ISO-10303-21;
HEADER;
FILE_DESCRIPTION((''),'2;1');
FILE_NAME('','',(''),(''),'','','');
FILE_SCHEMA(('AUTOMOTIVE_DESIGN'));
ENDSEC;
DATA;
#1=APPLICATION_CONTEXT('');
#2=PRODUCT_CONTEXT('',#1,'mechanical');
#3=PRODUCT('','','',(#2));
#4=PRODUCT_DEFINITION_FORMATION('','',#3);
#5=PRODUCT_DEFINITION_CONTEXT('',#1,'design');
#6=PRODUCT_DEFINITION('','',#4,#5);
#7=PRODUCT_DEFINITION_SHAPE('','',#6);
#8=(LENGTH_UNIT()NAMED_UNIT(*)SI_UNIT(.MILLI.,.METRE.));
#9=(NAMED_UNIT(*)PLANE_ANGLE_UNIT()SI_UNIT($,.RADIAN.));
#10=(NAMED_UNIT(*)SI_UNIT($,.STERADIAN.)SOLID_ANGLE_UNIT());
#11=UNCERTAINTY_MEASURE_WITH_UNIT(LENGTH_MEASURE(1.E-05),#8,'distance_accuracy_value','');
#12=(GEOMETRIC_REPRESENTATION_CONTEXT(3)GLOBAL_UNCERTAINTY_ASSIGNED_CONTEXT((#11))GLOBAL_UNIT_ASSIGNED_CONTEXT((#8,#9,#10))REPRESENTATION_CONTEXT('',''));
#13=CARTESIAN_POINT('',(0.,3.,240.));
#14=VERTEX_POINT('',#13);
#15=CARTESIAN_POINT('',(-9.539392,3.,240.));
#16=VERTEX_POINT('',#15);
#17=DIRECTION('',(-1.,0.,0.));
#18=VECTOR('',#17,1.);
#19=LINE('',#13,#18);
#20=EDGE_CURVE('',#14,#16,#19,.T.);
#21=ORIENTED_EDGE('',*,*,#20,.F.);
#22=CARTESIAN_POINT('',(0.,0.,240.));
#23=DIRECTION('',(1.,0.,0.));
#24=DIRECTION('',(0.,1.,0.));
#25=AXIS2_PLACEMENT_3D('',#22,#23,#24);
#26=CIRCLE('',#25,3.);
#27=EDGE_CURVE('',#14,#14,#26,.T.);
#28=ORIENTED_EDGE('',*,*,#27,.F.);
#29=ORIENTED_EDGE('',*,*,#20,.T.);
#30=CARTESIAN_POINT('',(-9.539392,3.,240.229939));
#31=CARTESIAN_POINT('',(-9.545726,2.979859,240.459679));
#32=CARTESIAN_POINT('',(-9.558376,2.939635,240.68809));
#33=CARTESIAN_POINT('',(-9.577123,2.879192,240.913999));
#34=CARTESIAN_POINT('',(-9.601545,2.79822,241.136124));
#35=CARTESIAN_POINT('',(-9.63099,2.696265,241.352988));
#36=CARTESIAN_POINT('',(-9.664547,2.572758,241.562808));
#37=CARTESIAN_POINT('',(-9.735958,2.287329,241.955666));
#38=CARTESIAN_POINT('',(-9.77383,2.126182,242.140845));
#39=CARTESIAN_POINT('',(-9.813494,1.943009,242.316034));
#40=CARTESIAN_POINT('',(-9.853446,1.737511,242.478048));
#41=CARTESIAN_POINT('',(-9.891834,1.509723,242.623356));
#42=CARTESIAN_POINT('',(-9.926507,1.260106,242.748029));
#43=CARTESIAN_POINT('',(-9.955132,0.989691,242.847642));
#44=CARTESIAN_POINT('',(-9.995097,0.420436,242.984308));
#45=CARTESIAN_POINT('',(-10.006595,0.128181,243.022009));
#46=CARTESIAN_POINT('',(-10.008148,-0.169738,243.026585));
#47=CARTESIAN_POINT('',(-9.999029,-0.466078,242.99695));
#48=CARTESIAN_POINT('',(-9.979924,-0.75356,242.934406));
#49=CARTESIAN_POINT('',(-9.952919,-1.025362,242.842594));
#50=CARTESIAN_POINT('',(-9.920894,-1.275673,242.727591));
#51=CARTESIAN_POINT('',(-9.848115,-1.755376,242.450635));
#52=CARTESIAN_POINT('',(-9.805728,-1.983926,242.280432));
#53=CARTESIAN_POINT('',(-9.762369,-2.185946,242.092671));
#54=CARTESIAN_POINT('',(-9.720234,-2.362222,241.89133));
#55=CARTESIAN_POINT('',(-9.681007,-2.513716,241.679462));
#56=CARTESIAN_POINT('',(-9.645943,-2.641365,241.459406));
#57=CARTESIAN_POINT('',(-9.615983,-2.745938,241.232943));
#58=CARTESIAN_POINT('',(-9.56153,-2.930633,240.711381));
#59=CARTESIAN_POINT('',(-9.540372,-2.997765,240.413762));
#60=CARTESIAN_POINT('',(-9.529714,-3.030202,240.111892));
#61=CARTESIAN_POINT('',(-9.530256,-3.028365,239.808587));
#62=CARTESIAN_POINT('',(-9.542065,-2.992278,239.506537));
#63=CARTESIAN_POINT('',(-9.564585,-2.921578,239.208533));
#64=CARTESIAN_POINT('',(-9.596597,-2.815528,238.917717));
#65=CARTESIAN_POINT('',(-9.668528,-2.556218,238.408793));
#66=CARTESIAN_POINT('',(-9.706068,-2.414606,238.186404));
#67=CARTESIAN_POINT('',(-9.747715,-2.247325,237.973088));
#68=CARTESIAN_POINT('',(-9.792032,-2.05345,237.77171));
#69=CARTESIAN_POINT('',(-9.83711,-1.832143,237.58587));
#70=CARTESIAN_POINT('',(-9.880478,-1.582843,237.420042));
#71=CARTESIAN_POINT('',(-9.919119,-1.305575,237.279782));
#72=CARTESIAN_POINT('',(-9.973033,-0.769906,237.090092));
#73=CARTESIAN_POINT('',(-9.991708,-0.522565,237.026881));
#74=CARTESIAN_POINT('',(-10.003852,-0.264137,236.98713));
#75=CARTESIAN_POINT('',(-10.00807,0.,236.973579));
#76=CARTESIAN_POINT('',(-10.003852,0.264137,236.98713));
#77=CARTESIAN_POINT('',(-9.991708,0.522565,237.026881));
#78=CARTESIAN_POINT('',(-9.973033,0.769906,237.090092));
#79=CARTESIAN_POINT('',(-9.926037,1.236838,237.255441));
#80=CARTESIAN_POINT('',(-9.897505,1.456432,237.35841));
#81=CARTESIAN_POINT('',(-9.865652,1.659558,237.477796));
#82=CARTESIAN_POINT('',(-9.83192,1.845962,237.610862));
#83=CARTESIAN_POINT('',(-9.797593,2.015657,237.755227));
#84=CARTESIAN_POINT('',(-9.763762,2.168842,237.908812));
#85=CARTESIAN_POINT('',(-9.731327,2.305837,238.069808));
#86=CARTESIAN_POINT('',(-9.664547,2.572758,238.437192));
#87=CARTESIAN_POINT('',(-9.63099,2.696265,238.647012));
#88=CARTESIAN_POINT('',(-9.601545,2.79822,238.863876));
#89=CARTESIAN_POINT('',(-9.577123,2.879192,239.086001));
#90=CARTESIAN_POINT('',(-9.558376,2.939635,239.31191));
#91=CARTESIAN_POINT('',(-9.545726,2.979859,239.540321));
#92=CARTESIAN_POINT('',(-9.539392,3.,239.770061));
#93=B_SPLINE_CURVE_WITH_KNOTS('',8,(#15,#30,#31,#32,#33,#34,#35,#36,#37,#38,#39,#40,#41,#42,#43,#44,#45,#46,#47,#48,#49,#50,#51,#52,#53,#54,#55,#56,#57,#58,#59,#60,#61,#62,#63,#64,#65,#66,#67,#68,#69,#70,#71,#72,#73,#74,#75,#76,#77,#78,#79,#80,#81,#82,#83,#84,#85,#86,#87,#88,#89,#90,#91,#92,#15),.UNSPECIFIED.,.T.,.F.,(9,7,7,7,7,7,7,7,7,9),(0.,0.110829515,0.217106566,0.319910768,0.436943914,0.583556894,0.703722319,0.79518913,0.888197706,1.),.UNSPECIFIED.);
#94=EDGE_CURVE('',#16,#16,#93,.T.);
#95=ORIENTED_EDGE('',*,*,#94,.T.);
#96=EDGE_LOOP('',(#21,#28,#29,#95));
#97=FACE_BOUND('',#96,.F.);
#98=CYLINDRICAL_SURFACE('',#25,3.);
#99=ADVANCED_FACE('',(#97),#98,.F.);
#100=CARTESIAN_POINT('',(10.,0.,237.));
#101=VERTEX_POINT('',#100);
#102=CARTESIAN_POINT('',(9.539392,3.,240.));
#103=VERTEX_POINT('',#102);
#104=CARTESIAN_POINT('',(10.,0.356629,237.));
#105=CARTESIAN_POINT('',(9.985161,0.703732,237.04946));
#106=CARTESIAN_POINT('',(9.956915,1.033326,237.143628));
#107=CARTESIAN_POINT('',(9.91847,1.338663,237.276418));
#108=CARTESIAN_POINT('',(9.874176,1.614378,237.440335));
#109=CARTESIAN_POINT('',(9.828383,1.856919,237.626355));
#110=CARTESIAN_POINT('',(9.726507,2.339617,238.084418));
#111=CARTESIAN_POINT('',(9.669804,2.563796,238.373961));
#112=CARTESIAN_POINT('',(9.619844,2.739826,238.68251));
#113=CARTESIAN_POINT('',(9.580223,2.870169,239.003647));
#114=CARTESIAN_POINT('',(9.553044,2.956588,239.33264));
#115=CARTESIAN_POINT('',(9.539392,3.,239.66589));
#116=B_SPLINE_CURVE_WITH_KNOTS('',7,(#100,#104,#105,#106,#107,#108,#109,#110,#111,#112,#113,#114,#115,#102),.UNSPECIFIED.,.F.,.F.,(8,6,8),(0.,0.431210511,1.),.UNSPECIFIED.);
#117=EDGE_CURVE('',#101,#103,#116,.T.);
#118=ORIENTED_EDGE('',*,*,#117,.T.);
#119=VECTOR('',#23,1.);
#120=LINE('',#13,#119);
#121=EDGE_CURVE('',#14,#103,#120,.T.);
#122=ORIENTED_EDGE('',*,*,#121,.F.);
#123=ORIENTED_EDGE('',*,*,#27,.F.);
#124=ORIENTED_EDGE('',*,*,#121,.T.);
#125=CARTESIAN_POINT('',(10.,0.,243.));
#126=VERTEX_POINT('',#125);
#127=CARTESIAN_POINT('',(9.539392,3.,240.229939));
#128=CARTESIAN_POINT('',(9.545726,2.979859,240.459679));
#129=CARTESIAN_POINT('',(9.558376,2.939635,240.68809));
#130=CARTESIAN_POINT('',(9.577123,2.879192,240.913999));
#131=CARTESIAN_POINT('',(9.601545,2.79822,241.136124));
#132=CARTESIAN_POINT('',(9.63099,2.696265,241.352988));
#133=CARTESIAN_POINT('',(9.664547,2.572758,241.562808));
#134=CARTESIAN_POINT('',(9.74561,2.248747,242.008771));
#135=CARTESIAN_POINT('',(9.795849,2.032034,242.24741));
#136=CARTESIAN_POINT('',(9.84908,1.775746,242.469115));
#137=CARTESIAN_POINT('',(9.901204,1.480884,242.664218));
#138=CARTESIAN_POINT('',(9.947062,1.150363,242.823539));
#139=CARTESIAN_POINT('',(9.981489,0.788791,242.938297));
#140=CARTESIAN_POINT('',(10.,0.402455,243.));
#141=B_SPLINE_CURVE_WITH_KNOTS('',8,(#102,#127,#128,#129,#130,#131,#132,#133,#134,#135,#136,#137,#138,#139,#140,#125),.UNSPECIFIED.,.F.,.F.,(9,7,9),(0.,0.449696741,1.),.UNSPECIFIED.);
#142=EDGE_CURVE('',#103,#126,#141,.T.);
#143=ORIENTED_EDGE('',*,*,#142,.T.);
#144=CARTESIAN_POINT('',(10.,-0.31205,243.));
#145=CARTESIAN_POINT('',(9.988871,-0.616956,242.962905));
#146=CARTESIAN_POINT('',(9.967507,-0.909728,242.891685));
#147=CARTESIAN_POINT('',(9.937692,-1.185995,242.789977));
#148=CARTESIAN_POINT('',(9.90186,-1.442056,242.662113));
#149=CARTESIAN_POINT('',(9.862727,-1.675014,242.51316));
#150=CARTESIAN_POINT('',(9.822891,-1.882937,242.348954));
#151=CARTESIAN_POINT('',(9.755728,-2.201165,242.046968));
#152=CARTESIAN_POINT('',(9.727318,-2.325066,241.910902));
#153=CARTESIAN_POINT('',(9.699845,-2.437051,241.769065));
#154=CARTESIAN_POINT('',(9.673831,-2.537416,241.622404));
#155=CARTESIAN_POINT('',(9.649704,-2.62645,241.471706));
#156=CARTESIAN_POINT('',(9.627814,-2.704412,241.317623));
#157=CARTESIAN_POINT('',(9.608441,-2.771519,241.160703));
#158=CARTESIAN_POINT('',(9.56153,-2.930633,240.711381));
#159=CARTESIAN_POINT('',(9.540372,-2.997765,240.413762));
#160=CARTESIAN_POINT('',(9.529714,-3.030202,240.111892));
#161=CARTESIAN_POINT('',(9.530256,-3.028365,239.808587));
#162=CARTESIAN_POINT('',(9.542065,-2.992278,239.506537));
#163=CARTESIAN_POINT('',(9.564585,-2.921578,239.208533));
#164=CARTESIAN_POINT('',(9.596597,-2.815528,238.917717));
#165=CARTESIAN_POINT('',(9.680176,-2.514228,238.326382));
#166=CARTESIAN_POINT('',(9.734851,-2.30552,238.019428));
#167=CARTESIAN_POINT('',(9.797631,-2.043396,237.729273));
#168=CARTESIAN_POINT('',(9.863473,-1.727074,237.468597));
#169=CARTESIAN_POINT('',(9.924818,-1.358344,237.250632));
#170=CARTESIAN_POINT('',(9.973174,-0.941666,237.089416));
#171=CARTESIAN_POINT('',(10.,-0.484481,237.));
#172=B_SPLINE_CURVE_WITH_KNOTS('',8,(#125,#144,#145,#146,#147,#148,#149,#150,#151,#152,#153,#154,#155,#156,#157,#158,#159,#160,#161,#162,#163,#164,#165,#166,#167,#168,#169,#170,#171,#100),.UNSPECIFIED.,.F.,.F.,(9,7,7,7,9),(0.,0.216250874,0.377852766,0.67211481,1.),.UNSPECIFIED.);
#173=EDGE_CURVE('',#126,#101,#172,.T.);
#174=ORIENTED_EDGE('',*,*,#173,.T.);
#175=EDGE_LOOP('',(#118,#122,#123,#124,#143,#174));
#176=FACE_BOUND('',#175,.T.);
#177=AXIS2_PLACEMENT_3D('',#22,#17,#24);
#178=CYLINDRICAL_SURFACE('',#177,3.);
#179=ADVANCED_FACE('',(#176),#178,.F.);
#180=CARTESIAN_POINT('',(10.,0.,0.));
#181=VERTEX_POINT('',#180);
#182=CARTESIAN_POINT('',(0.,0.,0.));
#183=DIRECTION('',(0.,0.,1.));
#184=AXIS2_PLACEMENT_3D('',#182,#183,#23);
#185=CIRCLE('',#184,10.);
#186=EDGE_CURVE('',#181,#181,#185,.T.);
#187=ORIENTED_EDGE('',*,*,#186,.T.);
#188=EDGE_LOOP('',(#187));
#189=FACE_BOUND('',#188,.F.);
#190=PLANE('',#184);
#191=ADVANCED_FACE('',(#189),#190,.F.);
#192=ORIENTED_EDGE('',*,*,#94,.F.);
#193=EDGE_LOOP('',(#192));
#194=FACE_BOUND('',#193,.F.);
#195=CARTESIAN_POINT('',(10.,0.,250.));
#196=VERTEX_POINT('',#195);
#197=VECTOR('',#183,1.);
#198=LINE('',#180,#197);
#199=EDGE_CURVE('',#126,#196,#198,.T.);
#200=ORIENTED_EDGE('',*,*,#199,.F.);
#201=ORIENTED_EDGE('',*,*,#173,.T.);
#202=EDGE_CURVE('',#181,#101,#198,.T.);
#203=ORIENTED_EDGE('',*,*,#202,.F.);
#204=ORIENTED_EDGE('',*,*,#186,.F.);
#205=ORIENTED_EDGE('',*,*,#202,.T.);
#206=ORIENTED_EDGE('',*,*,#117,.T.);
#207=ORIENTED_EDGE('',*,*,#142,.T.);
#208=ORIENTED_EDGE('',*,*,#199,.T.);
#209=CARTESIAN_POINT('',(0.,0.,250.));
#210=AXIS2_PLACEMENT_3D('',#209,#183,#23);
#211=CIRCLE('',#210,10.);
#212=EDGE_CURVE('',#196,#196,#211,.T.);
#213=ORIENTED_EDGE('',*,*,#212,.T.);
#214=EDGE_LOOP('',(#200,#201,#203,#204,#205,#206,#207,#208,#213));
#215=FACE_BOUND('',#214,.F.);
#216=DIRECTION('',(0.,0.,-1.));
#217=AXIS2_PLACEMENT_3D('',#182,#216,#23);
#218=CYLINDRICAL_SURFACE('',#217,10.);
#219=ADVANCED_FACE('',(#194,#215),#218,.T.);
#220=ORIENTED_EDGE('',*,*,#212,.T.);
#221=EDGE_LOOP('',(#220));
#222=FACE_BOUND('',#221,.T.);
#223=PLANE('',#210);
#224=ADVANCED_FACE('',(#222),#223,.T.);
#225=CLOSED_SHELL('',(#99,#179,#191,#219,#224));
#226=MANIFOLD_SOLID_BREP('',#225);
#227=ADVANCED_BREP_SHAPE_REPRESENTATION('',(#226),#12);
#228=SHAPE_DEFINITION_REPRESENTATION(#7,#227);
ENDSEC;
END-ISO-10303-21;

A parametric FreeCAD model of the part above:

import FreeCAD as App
import Part
import Sketcher
from FreeCAD import Vector

doc = App.newDocument("Part")
body = doc.addObject("PartDesign::Body", "Body")

# Sketch on XY plane
sketch1 = doc.addObject("Sketcher::SketchObject", "Sketch")
body.addObject(sketch1)
sketch1.AttachmentSupport = (doc.XY_Plane, [""])
sketch1.MapMode = "FlatFace"
sketch1.addGeometry(Part.Circle(Vector(0, 0, 0), Vector(0, 0, 1), 10), False)
sketch1.addConstraint(Sketcher.Constraint("Coincident", 0, 3, -1, 1))
sketch1.addConstraint(Sketcher.Constraint("Diameter", 0, 20.0))
pad1 = doc.addObject("PartDesign::Pad", "Pad")
body.addObject(pad1)
pad1.Profile = sketch1
pad1.Length = 250

# Sketch on YZ plane
sketch2 = doc.addObject("Sketcher::SketchObject", "Sketch001")
body.addObject(sketch2)
sketch2.AttachmentSupport = (doc.YZ_Plane, [""])
sketch2.MapMode = "FlatFace"
sketch2.addGeometry(Part.Circle(Vector(0, 240, 0), Vector(0, 0, 1), 3), False)
sketch2.addConstraint(Sketcher.Constraint("PointOnObject", 0, 3, -2))
sketch2.addConstraint(Sketcher.Constraint("Diameter", 0, 6.0))
sketch2.addConstraint(Sketcher.Constraint("DistanceY", -1, 1, 0, 3, 240.0))
pocket1 = doc.addObject("PartDesign::Pocket", "Pocket")
body.addObject(pocket1)
pocket1.Profile = sketch2
pocket1.Type = "ThroughAll"
pocket1.Midplane = True

doc.recompute()
